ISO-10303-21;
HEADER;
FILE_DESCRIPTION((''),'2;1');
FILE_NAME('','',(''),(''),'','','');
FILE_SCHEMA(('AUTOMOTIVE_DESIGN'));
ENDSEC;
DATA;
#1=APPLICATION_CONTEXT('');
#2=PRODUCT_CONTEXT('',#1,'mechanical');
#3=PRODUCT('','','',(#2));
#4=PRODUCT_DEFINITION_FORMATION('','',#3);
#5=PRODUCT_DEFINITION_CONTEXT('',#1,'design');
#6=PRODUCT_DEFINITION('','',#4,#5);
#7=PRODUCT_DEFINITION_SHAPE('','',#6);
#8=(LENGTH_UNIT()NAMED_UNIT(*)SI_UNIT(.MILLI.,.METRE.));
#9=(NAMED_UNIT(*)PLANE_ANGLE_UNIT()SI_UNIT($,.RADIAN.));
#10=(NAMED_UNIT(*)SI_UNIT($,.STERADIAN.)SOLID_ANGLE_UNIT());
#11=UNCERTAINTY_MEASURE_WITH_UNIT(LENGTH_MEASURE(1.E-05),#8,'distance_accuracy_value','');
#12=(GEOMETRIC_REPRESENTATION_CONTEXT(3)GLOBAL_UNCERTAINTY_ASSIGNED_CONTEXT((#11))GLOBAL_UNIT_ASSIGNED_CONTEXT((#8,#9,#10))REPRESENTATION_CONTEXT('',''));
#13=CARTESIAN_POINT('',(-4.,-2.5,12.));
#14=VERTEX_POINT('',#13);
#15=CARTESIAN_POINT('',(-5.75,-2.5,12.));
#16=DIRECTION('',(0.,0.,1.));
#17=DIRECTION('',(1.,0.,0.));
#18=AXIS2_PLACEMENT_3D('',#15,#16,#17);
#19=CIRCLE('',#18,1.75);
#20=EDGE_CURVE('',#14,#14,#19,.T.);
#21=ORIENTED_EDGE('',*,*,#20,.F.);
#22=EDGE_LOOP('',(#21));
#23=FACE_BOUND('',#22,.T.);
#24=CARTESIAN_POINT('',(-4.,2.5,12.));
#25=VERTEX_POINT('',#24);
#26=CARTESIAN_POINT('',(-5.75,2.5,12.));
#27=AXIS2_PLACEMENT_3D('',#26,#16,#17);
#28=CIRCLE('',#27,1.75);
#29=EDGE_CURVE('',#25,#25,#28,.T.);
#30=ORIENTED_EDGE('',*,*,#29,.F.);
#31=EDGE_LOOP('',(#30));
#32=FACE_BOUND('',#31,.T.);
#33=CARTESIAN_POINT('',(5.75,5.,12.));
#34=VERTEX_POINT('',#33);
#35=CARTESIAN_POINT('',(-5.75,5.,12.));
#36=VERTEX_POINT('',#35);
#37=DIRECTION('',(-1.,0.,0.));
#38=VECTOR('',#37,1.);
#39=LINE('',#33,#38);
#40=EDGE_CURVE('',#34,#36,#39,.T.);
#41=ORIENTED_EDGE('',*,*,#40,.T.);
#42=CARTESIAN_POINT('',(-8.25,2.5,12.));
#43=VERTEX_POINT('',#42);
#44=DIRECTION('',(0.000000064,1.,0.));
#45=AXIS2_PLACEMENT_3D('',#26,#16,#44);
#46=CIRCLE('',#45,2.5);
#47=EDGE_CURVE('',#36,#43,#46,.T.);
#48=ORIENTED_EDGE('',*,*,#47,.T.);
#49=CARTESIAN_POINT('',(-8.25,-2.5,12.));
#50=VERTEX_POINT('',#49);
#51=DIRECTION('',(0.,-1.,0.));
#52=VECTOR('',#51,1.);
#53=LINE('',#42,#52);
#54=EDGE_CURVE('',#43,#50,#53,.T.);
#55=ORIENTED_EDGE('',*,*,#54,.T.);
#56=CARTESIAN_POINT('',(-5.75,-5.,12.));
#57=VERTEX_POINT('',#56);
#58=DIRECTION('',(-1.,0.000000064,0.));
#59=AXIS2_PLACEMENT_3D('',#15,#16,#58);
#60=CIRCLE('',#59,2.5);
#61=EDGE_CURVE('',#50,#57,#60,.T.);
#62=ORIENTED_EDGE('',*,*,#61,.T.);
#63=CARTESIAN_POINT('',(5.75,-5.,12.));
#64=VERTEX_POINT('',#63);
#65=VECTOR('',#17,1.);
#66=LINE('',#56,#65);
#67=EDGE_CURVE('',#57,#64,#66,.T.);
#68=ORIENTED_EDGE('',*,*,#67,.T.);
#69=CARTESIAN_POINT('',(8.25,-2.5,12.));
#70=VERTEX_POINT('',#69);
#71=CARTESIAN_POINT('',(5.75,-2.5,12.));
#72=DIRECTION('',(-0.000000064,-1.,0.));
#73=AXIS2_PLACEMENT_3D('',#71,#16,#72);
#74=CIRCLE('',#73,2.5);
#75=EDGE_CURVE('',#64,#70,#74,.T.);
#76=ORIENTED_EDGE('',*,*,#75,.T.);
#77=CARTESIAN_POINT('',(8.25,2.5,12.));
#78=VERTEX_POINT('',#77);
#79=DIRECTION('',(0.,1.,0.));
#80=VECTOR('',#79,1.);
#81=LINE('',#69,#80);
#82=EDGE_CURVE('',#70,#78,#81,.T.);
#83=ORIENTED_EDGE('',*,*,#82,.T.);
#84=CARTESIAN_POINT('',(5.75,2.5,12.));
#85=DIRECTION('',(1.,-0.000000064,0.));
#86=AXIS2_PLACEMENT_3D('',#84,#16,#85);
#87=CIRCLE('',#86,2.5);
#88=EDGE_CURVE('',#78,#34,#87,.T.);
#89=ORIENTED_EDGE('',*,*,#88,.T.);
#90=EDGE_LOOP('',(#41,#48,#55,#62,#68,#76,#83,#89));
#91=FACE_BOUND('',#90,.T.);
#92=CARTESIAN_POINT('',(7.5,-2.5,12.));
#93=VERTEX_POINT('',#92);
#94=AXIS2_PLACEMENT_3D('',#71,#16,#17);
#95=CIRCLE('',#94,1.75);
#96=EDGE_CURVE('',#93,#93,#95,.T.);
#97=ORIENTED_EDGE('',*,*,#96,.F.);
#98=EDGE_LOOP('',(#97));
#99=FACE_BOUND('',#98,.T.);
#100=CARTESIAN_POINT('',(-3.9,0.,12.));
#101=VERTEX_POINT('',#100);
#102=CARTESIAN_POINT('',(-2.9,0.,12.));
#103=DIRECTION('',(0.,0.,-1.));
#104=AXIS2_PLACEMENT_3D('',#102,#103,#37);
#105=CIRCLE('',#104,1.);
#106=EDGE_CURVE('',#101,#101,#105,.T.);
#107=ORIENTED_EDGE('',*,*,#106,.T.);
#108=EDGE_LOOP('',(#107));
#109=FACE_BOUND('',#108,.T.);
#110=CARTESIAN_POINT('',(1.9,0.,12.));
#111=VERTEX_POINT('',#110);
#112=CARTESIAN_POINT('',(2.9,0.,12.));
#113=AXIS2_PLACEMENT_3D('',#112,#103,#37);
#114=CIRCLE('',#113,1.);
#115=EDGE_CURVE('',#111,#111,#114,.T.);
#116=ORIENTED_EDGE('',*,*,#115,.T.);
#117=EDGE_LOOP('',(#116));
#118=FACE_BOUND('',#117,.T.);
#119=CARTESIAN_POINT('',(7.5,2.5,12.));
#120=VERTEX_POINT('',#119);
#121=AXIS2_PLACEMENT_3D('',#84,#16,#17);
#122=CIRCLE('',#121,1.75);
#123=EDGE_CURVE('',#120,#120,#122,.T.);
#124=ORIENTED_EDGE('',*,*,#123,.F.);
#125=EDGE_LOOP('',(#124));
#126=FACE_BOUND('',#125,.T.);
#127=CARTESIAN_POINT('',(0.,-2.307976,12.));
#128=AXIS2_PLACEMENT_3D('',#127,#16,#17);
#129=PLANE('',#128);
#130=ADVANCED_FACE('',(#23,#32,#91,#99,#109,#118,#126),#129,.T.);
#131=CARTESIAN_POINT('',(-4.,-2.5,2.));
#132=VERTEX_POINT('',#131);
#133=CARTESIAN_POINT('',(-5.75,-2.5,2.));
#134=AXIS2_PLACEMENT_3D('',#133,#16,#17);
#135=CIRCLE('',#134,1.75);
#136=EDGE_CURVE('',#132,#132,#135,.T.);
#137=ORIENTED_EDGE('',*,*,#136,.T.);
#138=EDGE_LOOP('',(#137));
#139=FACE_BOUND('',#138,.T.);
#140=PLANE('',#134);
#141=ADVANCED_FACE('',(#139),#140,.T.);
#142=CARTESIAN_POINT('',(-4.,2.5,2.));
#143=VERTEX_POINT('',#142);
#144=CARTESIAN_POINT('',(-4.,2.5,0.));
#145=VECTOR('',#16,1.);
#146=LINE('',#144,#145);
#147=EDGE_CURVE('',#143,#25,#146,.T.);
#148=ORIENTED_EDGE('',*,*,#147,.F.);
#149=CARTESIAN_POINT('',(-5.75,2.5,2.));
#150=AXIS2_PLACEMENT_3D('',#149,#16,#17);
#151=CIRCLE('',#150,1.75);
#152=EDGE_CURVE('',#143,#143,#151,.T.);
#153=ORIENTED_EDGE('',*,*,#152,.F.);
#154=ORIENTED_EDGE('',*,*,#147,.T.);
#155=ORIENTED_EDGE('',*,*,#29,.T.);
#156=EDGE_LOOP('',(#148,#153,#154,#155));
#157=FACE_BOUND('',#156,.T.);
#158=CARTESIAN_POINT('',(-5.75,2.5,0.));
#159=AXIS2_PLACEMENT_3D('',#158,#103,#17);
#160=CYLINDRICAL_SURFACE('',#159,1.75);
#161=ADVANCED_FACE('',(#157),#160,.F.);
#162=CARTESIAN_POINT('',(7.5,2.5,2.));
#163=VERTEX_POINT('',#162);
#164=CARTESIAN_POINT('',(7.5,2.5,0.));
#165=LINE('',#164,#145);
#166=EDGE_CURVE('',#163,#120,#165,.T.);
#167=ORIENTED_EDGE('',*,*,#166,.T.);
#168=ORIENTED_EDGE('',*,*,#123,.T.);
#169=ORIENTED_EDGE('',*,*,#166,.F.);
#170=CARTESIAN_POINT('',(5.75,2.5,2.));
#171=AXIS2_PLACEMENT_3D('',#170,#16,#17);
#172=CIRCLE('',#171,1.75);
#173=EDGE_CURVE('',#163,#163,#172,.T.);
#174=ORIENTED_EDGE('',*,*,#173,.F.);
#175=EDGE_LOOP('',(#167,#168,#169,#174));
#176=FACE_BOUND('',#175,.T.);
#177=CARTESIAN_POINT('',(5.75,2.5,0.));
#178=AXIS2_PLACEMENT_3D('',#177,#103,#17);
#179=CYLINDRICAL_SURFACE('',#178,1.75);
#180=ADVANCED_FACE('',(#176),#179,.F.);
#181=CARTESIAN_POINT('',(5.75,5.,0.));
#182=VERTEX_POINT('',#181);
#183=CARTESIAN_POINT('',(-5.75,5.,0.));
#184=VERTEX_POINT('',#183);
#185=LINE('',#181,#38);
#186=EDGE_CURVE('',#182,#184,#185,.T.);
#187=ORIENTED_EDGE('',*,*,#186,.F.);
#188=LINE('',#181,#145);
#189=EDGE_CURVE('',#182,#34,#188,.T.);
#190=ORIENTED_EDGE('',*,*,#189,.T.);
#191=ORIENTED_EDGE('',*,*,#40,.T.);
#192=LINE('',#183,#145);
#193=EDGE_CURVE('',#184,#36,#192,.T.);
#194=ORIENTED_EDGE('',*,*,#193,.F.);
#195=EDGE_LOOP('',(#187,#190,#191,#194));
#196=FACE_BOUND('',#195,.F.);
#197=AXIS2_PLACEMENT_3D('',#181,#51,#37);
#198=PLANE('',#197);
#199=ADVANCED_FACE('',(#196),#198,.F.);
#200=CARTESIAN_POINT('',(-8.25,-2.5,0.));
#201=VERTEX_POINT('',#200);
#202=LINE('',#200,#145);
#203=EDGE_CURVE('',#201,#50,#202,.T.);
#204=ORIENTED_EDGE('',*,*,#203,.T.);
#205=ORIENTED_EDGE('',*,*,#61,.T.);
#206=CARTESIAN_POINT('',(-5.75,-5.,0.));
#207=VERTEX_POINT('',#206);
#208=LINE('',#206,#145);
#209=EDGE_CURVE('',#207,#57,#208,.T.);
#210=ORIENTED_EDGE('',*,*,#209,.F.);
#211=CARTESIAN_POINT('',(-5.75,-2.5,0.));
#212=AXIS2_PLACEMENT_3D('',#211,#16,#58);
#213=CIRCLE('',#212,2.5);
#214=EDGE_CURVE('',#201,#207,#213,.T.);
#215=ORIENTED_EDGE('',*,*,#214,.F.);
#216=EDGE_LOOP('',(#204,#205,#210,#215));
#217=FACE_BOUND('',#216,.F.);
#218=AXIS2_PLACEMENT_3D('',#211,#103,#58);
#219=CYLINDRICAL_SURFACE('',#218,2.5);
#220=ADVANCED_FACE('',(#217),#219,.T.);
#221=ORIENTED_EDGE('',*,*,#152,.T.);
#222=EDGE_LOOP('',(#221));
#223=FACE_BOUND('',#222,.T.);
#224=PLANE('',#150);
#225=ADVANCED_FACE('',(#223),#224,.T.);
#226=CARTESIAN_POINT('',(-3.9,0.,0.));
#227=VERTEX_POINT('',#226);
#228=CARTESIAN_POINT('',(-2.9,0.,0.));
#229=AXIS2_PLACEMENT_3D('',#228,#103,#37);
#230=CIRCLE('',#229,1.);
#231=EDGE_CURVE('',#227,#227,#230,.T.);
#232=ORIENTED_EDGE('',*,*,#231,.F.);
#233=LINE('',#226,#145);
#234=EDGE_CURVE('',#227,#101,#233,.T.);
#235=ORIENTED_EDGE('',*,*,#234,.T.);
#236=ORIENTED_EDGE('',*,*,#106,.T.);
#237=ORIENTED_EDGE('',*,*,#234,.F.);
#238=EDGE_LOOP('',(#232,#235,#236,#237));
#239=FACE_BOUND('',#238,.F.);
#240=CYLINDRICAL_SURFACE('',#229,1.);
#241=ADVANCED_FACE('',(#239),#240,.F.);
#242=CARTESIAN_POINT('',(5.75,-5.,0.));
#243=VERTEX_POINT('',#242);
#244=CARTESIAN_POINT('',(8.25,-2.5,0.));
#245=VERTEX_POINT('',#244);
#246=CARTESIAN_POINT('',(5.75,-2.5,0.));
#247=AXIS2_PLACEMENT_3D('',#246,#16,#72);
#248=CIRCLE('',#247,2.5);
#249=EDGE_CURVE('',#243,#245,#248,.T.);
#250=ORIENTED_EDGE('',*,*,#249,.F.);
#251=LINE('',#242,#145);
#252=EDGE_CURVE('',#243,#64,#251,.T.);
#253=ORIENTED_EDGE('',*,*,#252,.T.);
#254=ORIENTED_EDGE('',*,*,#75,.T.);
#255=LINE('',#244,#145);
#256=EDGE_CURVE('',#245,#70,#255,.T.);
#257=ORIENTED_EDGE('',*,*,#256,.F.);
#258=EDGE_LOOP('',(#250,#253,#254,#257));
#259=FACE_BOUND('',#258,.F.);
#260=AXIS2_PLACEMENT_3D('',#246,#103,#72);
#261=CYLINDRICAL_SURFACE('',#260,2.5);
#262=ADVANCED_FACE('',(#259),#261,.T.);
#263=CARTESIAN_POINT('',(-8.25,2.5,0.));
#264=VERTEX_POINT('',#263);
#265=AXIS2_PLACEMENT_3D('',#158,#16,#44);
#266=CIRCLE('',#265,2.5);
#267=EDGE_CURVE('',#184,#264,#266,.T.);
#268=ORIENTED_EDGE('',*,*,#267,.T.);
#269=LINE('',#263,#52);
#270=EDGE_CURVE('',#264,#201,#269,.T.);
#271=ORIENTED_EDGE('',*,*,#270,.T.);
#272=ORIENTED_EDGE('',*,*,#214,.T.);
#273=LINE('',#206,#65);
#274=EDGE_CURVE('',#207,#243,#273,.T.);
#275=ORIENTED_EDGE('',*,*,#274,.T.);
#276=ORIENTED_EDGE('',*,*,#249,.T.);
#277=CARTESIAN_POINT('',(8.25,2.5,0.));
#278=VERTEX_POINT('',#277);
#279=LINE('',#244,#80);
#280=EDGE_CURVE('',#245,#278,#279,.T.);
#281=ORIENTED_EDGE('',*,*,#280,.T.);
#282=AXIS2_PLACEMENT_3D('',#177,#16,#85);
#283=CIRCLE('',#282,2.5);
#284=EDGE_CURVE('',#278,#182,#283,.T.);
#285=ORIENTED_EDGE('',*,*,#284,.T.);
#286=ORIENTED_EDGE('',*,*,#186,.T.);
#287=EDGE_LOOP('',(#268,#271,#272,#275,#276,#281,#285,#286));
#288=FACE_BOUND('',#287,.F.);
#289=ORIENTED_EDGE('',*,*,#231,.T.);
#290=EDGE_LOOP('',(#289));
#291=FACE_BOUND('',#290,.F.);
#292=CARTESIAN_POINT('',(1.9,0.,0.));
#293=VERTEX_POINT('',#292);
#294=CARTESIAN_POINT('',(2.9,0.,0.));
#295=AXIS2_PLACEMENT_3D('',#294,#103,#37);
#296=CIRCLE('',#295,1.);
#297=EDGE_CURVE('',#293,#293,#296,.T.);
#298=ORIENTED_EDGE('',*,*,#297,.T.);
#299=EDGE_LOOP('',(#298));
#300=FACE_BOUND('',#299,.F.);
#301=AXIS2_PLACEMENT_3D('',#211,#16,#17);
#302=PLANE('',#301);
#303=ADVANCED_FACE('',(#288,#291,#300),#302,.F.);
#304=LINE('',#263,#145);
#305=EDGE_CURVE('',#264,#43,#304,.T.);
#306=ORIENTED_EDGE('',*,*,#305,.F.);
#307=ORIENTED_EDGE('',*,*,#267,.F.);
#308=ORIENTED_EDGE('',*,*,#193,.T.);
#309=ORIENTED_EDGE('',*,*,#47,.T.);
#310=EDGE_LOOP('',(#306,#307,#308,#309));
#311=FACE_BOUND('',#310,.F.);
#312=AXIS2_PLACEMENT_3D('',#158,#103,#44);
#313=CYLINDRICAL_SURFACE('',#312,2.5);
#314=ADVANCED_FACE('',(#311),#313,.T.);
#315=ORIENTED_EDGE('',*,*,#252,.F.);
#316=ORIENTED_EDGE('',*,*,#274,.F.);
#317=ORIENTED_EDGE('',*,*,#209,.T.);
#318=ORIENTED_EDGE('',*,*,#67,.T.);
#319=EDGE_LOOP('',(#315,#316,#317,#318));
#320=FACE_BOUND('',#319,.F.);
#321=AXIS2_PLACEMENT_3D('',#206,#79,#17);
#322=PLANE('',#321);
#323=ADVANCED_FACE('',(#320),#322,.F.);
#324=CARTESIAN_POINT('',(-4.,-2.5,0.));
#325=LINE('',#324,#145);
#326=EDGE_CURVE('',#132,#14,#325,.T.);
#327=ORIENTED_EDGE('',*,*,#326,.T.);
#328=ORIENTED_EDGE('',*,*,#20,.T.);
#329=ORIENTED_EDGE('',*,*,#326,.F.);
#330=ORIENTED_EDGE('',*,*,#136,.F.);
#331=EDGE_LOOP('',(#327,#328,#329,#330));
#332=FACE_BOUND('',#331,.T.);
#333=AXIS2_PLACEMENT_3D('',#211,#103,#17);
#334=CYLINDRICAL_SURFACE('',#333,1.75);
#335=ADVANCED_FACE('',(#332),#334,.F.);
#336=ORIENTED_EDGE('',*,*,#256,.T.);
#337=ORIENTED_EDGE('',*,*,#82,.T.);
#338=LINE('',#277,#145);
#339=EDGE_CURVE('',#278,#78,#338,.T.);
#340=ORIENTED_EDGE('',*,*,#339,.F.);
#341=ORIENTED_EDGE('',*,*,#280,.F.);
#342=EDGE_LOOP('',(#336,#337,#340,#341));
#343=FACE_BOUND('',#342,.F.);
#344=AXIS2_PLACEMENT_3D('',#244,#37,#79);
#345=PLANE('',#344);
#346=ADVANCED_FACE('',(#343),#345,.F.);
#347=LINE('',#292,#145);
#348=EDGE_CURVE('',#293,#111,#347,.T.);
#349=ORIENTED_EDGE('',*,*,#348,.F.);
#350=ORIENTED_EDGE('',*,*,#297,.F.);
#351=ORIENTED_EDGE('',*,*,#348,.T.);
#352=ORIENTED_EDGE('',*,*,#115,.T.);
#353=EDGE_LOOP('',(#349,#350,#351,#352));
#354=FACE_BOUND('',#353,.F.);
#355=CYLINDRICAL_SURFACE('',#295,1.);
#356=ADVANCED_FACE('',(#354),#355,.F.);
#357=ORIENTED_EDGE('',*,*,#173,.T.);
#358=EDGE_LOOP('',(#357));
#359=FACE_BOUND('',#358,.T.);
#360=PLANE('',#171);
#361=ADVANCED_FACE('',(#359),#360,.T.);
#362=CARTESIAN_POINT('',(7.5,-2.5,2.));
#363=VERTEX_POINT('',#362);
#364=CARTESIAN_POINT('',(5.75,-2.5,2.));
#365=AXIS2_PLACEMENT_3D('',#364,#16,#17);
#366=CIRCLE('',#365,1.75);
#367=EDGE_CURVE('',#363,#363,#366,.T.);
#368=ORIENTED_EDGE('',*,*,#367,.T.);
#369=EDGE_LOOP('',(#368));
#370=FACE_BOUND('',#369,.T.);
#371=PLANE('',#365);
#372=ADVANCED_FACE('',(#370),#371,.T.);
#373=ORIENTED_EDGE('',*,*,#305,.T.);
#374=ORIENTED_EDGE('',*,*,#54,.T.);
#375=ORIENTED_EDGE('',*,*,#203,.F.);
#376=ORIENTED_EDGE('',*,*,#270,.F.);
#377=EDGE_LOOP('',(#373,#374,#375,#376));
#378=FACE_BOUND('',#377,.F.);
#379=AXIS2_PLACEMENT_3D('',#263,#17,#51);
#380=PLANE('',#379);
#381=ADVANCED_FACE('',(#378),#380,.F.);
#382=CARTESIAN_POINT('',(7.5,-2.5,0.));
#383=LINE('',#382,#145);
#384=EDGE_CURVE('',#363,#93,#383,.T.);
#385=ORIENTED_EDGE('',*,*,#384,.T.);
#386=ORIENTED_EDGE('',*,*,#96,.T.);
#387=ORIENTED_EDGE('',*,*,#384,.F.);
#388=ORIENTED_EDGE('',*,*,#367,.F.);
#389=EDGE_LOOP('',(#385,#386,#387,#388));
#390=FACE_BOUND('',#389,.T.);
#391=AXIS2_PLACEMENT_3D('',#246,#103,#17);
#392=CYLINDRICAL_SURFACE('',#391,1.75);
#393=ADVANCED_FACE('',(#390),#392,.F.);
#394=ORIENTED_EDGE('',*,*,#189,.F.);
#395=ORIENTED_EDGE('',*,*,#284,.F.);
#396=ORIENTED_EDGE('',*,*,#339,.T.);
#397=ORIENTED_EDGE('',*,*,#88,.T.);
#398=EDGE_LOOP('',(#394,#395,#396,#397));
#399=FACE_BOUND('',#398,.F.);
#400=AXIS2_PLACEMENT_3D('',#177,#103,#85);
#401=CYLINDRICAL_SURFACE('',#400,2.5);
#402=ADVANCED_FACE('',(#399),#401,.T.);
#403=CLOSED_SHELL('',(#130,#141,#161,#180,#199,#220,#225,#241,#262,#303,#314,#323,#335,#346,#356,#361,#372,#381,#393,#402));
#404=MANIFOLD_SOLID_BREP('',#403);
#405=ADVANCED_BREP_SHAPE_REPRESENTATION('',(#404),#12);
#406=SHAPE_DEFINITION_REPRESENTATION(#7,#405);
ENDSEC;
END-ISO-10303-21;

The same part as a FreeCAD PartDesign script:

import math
import FreeCAD as App
import Part
import Sketcher

doc = App.newDocument("Part")
params = doc.addObject("Spreadsheet::Sheet", "Params")
for row, (alias, value) in enumerate([
    ("sketch1_diameter", "2 mm"),
    ("sketch1_diameter2", "3.5 mm"),
    ("sketch1_radius", "2.5 mm"),
    ("sketch1_height", "5 mm"),
    ("sketch1_width", "11.5 mm"),
    ("pad1_length", "12 mm"),
    ("sketch2_diameter", "3.5 mm"),
    ("pad2_length", "2 mm"),
], start=1):
    params.set(f"A{row}", alias)
    params.set(f"B{row}", "=" + value)
    params.setAlias(f"B{row}", alias)

body = doc.addObject("PartDesign::Body", "Body")

# Sketch on XY plane
sketch1 = body.newObject("Sketcher::SketchObject", "Sketch")
sketch1.AttachmentSupport = (doc.getObject("XY_Plane"), [""])
sketch1.MapMode = "FlatFace"
sketch1.addGeometry(Part.ArcOfCircle(Part.Circle(App.Vector(-5.8, -2.5, 0), App.Vector(0, 0, 1), 2.5), math.radians(180), math.radians(270)), False)
sketch1.addGeometry(Part.LineSegment(App.Vector(-5.8, -5, 0), App.Vector(5.8, -5, 0)), False)
sketch1.addGeometry(Part.ArcOfCircle(Part.Circle(App.Vector(5.8, -2.5, 0), App.Vector(0, 0, 1), 2.5), math.radians(-90), math.radians(0)), False)
sketch1.addGeometry(Part.LineSegment(App.Vector(8.2, -2.5, 0), App.Vector(8.2, 2.5, 0)), False)
sketch1.addGeometry(Part.ArcOfCircle(Part.Circle(App.Vector(5.8, 2.5, 0), App.Vector(0, 0, 1), 2.5), math.radians(0), math.radians(90)), False)
sketch1.addGeometry(Part.LineSegment(App.Vector(5.8, 5, 0), App.Vector(-5.8, 5, 0)), False)
sketch1.addGeometry(Part.ArcOfCircle(Part.Circle(App.Vector(-5.8, 2.5, 0), App.Vector(0, 0, 1), 2.5), math.radians(90), math.radians(180)), False)
sketch1.addGeometry(Part.LineSegment(App.Vector(-8.2, 2.5, 0), App.Vector(-8.2, -2.5, 0)), False)
sketch1.addGeometry(Part.Circle(App.Vector(-5.8, -2.5, 0), App.Vector(0, 0, 1), 1.8), False)
sketch1.addGeometry(Part.Circle(App.Vector(5.8, -2.5, 0), App.Vector(0, 0, 1), 1.8), False)
sketch1.addGeometry(Part.Circle(App.Vector(-2.9, 0, 0), App.Vector(0, 0, 1), 1), False)
sketch1.addGeometry(Part.Circle(App.Vector(-5.8, 2.5, 0), App.Vector(0, 0, 1), 1.8), False)
sketch1.addGeometry(Part.Circle(App.Vector(2.9, 0, 0), App.Vector(0, 0, 1), 1), False)
sketch1.addGeometry(Part.Circle(App.Vector(5.8, 2.5, 0), App.Vector(0, 0, 1), 1.8), False)
sketch1.addConstraint(Sketcher.Constraint("Tangent", 0, 2, 1, 1))
sketch1.addConstraint(Sketcher.Constraint("Tangent", 1, 2, 2, 1))
sketch1.addConstraint(Sketcher.Constraint("Tangent", 2, 2, 3, 1))
sketch1.addConstraint(Sketcher.Constraint("Tangent", 3, 2, 4, 1))
sketch1.addConstraint(Sketcher.Constraint("Tangent", 4, 2, 5, 1))
sketch1.addConstraint(Sketcher.Constraint("Tangent", 5, 2, 6, 1))
sketch1.addConstraint(Sketcher.Constraint("Tangent", 6, 2, 7, 1))
sketch1.addConstraint(Sketcher.Constraint("Tangent", 7, 2, 0, 1))
sketch1.addConstraint(Sketcher.Constraint("Horizontal", 1))
sketch1.addConstraint(Sketcher.Constraint("Vertical", 3))
sketch1.addConstraint(Sketcher.Constraint("Horizontal", 5))
sketch1.addConstraint(Sketcher.Constraint("Vertical", 7))
sketch1.addConstraint(Sketcher.Constraint("Coincident", 8, 3, 0, 3))
sketch1.addConstraint(Sketcher.Constraint("Coincident", 9, 3, 2, 3))
sketch1.addConstraint(Sketcher.Constraint("Coincident", 11, 3, 6, 3))
sketch1.addConstraint(Sketcher.Constraint("Coincident", 13, 3, 4, 3))
sketch1.addConstraint(Sketcher.Constraint("Equal", 0, 2))
sketch1.addConstraint(Sketcher.Constraint("Equal", 2, 4))
sketch1.addConstraint(Sketcher.Constraint("Equal", 4, 6))
sketch1.addConstraint(Sketcher.Constraint("Equal", 8, 9))
sketch1.addConstraint(Sketcher.Constraint("Equal", 9, 11))
sketch1.addConstraint(Sketcher.Constraint("Equal", 10, 12))
sketch1.addConstraint(Sketcher.Constraint("Equal", 11, 13))
sketch1.addConstraint(Sketcher.Constraint("Symmetric", 0, 3, 4, 3, -1, 1))
sketch1.addConstraint(Sketcher.Constraint("Symmetric", 10, 3, 12, 3, -1, 1))
sketch1.addConstraint(Sketcher.Constraint("PointOnObject", 10, 3, -1))
sketch1.addConstraint(Sketcher.Constraint("Diameter", 10, 2.0))
sketch1.addConstraint(Sketcher.Constraint("Diameter", 8, 3.5))
sketch1.addConstraint(Sketcher.Constraint("Radius", 0, 2.5))
sketch1.addConstraint(Sketcher.Constraint("DistanceY", 3, 1, 3, 2, 5.0))
sketch1.addConstraint(Sketcher.Constraint("DistanceX", 1, 1, 1, 2, 11.5))
sketch1.addConstraint(Sketcher.Constraint("DistanceX", 10, 3, -1, 1, 2.9))
sketch1.setExpression("Constraints[26]", "Params.sketch1_diameter")
sketch1.setExpression("Constraints[27]", "Params.sketch1_diameter2")
sketch1.setExpression("Constraints[28]", "Params.sketch1_radius")
sketch1.setExpression("Constraints[29]", "Params.sketch1_height")
sketch1.setExpression("Constraints[30]", "Params.sketch1_width")
pad1 = body.newObject("PartDesign::Pad", "Pad")
pad1.Profile = sketch1
pad1.setExpression("Length", "Params.pad1_length")

# Sketch on XY plane
sketch2 = body.newObject("Sketcher::SketchObject", "Sketch001")
sketch2.AttachmentSupport = (doc.getObject("XY_Plane"), [""])
sketch2.MapMode = "FlatFace"
sketch2.addGeometry(Part.Circle(App.Vector(-5.8, -2.5, 0), App.Vector(0, 0, 1), 1.8), False)
sketch2.addGeometry(Part.Circle(App.Vector(5.8, -2.5, 0), App.Vector(0, 0, 1), 1.8), False)
sketch2.addGeometry(Part.Circle(App.Vector(5.8, 2.5, 0), App.Vector(0, 0, 1), 1.8), False)
sketch2.addGeometry(Part.Circle(App.Vector(-5.8, 2.5, 0), App.Vector(0, 0, 1), 1.8), False)
sketch2.addConstraint(Sketcher.Constraint("Equal", 0, 1))
sketch2.addConstraint(Sketcher.Constraint("Equal", 1, 2))
sketch2.addConstraint(Sketcher.Constraint("Equal", 2, 3))
sketch2.addConstraint(Sketcher.Constraint("Symmetric", 0, 3, 2, 3, -1, 1))
sketch2.addConstraint(Sketcher.Constraint("Symmetric", 1, 3, 3, 3, -1, 1))
sketch2.addConstraint(Sketcher.Constraint("Symmetric", 0, 3, 1, 3, -2))
sketch2.addConstraint(Sketcher.Constraint("Diameter", 0, 3.5))
sketch2.addConstraint(Sketcher.Constraint("DistanceY", 1, 3, 2, 3, 5.0))
sketch2.addConstraint(Sketcher.Constraint("DistanceX", 0, 3, 1, 3, 11.5))
sketch2.setExpression("Constraints[6]", "Params.sketch2_diameter")
pad2 = body.newObject("PartDesign::Pad", "Pad001")
pad2.Profile = sketch2
pad2.setExpression("Length", "Params.pad2_length")

doc.recompute()
